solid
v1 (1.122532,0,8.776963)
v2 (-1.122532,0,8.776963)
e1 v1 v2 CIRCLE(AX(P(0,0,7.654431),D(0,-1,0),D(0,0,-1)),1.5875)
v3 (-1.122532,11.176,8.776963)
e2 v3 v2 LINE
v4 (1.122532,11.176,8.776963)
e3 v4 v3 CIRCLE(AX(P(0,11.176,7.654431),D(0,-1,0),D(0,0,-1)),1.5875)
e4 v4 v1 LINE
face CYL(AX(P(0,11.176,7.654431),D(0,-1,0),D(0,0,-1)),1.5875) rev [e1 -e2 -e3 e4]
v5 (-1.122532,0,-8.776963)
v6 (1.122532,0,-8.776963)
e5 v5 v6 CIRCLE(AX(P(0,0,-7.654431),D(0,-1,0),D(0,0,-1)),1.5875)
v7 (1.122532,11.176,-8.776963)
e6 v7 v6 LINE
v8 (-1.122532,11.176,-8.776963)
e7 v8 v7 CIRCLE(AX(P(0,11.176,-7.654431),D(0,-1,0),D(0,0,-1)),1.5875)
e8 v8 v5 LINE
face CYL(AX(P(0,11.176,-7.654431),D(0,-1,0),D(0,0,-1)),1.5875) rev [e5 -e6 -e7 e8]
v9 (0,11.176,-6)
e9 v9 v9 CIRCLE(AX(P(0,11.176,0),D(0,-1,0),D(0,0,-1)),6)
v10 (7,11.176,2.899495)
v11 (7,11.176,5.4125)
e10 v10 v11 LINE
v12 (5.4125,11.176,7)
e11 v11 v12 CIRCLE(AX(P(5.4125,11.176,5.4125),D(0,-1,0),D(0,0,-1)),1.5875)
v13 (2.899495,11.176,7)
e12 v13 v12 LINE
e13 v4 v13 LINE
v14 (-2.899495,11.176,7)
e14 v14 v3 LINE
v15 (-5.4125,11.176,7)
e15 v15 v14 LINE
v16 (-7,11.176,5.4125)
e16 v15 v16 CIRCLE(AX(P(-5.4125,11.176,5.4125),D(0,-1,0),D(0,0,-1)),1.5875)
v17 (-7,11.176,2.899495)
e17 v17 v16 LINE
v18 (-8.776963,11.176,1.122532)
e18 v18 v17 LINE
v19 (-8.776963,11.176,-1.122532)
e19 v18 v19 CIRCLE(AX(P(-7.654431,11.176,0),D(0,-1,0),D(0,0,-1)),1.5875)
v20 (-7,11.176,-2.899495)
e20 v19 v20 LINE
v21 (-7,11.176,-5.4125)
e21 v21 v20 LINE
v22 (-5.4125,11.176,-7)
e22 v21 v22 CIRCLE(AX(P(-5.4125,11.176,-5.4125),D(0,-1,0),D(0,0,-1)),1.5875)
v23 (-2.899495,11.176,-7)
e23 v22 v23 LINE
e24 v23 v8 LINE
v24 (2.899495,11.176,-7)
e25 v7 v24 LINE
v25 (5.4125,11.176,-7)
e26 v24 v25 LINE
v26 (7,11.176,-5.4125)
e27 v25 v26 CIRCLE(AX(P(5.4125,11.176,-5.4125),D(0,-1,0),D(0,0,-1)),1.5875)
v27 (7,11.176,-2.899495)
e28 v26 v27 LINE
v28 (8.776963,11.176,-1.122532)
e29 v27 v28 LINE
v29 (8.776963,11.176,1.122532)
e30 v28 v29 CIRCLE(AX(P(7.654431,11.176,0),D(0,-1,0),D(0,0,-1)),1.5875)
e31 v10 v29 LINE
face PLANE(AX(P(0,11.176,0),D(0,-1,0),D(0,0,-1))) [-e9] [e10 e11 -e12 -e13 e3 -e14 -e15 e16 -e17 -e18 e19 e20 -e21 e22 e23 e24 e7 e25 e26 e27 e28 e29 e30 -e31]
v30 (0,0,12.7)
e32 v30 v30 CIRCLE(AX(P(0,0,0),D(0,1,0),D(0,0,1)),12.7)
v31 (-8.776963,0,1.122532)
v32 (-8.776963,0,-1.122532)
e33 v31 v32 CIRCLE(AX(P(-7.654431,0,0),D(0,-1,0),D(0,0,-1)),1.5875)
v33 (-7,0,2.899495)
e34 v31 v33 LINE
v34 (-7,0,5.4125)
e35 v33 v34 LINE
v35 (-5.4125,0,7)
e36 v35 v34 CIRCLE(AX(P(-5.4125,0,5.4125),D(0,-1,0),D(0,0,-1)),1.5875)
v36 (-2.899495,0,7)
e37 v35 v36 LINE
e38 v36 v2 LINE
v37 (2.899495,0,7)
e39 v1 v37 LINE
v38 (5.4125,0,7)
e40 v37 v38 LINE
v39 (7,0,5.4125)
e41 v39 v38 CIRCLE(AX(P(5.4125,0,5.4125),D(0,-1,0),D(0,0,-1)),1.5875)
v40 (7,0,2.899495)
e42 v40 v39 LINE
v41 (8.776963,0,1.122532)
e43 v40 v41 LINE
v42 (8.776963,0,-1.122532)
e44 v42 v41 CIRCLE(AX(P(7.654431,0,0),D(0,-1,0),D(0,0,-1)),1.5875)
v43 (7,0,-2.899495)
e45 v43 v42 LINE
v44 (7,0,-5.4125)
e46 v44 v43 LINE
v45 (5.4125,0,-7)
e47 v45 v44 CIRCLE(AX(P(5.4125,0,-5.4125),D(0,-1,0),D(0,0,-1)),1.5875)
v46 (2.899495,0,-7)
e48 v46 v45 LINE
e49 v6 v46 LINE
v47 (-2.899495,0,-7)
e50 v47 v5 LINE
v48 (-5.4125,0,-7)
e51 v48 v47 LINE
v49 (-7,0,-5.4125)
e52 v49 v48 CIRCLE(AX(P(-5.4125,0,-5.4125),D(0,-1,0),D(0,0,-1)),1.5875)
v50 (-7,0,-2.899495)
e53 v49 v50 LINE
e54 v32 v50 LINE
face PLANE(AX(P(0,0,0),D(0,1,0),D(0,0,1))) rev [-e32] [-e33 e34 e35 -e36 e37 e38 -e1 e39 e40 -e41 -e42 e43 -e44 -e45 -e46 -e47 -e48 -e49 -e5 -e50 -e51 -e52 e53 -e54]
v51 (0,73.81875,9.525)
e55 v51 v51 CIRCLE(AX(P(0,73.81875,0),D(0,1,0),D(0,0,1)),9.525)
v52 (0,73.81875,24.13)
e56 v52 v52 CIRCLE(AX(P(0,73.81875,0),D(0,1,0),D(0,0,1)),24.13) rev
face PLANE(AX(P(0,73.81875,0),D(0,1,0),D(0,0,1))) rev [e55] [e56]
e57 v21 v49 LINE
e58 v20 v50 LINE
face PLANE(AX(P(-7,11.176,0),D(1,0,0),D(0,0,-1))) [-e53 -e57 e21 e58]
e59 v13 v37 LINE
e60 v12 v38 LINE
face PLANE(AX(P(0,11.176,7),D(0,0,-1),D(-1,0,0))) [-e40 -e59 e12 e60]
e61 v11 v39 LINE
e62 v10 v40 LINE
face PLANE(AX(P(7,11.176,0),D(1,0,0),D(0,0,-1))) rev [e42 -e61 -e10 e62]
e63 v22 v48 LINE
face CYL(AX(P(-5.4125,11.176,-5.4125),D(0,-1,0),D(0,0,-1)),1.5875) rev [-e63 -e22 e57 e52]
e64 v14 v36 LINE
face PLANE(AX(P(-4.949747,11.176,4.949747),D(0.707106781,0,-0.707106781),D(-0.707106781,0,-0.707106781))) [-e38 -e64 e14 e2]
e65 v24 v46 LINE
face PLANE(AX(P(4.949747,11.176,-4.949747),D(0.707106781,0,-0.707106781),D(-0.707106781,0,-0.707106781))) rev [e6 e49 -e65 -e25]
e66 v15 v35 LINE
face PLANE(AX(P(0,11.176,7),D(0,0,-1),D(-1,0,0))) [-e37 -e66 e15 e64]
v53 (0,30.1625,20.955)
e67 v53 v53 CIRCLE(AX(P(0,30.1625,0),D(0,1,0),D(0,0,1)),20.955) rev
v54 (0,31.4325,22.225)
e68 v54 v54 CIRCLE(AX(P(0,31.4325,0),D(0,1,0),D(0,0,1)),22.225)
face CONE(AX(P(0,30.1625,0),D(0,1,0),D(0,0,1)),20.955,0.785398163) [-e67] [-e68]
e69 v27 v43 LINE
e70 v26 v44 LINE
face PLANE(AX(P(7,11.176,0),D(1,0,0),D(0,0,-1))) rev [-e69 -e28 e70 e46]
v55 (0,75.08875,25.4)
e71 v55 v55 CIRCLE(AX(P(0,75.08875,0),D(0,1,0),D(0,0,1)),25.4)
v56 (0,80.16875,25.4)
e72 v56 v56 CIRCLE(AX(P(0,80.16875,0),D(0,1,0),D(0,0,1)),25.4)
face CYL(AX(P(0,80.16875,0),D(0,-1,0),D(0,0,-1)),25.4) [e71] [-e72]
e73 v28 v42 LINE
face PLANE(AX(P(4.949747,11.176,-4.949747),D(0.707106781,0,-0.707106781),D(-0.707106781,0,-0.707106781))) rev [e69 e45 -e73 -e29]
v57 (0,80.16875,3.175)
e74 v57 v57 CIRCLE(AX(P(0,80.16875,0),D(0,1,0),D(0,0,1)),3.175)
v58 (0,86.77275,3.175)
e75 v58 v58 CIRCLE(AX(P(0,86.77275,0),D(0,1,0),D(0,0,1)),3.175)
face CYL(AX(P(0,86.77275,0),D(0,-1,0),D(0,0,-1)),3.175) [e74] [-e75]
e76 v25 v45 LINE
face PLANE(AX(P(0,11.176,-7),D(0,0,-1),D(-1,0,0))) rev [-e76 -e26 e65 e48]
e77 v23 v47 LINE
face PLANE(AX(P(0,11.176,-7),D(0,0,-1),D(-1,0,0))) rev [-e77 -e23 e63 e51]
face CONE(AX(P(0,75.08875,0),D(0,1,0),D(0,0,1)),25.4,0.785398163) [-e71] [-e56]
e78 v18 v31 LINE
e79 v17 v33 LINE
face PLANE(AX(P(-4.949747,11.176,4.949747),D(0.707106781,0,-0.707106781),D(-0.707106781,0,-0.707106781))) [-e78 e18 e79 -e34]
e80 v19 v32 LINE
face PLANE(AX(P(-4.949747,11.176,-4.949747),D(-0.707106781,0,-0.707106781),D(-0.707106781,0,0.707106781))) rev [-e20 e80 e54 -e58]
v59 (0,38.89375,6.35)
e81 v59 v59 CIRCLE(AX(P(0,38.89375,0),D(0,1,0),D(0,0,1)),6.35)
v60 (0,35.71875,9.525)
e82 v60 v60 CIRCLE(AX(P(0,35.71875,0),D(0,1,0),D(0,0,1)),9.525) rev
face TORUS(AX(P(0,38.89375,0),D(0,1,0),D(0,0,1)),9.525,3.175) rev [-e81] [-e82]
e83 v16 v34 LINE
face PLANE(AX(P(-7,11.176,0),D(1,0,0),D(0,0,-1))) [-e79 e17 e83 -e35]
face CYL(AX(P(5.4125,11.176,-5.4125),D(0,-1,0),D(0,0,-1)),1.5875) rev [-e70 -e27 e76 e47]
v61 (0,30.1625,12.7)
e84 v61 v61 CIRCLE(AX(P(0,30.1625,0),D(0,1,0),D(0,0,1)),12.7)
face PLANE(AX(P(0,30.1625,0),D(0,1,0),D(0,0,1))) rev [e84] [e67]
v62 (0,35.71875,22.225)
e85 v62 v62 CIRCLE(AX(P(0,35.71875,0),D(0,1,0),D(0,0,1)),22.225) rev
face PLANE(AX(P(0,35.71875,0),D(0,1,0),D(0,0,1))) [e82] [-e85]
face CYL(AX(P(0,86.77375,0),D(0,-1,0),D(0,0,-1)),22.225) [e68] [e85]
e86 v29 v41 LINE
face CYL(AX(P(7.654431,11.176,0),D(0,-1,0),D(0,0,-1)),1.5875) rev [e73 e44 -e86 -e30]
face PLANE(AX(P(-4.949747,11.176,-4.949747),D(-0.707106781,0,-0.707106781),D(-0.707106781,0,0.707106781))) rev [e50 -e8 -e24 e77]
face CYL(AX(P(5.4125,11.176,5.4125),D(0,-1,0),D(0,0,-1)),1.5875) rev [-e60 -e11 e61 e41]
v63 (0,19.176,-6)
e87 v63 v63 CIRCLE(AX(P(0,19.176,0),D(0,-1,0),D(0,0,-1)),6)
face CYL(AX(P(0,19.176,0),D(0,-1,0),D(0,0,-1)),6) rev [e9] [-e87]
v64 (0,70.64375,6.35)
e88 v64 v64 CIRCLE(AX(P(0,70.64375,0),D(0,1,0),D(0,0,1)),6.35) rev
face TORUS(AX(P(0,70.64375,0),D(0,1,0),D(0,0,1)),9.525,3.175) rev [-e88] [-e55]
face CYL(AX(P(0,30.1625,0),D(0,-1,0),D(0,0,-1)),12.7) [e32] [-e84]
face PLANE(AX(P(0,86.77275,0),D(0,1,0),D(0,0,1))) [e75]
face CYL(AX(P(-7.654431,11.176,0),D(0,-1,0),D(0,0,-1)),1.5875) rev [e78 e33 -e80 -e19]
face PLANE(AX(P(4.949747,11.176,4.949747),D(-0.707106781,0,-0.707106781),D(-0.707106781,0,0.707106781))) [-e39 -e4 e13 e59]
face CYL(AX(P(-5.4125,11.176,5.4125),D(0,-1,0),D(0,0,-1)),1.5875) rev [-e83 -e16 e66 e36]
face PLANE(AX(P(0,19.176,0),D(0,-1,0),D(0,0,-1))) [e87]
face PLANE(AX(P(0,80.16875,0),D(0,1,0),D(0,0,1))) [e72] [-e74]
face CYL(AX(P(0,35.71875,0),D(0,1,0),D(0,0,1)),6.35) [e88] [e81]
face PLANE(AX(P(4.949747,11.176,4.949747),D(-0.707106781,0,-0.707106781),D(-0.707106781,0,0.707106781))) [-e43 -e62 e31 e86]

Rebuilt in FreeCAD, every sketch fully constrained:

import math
import FreeCAD as App
import Part
import Sketcher
from FreeCAD import Vector
Q = App.Units.Quantity


def edges_at(feature, points):
    """Names of the edges that pass closest to the given points."""
    edges = feature.Shape.Edges
    near = lambda p: min(range(len(edges)), key=lambda i: edges[i].distToShape(Part.Vertex(*p))[0])
    return sorted({f"Edge{near(p) + 1}" for p in points})

doc = App.newDocument("Part")
body = doc.addObject("PartDesign::Body", "Body")

sketch1 = body.newObject("Sketcher::SketchObject", "Sketch")
sketch1.AttachmentSupport = (doc.getObject("XZ_Plane"), [""])
sketch1.MapMode = "FlatFace"
sketch1.addGeometry(Part.Circle(Vector(0, 0, 0), Vector(0, 0, 1), 12.7), False)
sketch1.addConstraint(Sketcher.Constraint("Coincident", 0, 3, -1, 1))
sketch1.addConstraint(Sketcher.Constraint("Diameter", 0, Q("1 in")))
pad1 = body.newObject("PartDesign::Pad", "Pad")
pad1.Profile = sketch1
pad1.Length = Q("1.1875 in")
pad1.Reversed = True

sketch2 = body.newObject("Sketcher::SketchObject", "Sketch001")
sketch2.AttachmentSupport = (doc.getObject("XZ_Plane"), [""])
sketch2.MapMode = "FlatFace"
sketch2.AttachmentOffset = App.Placement(Vector(0, 0, -1.1875 * 25.4), App.Rotation())
sketch2.addGeometry(Part.Circle(Vector(0, 0, 0), Vector(0, 0, 1), 25.4), False)
sketch2.addConstraint(Sketcher.Constraint("Coincident", 0, 3, -1, 1))
sketch2.addConstraint(Sketcher.Constraint("Diameter", 0, Q("2 in")))
pad2 = body.newObject("PartDesign::Pad", "Pad001")
pad2.Profile = sketch2
pad2.Length = Q("1.96875 in")
pad2.Reversed = True

sketch3 = body.newObject("Sketcher::SketchObject", "Sketch002")
sketch3.AttachmentSupport = (doc.getObject("XZ_Plane"), [""])
sketch3.MapMode = "FlatFace"
sketch3.addGeometry(Part.LineSegment(Vector(-7, 2.899495, 0), Vector(-8.776963, 1.122532, 0)), False)
sketch3.addGeometry(Part.ArcOfCircle(Part.Circle(Vector(-7.654431, 0, 0), Vector(0, 0, 1), 1.5875), math.radians(135), math.radians(225)), False)
sketch3.addGeometry(Part.LineSegment(Vector(-8.776963, -1.122532, 0), Vector(-7, -2.899495, 0)), False)
sketch3.addGeometry(Part.LineSegment(Vector(-7, -2.899495, 0), Vector(-7, -5.4125, 0)), False)
sketch3.addGeometry(Part.ArcOfCircle(Part.Circle(Vector(-5.4125, -5.4125, 0), Vector(0, 0, 1), 1.5875), math.radians(180), math.radians(270)), False)
sketch3.addGeometry(Part.LineSegment(Vector(-5.4125, -7, 0), Vector(-2.899495, -7, 0)), False)
sketch3.addGeometry(Part.LineSegment(Vector(-2.899495, -7, 0), Vector(-1.122532, -8.776963, 0)), False)
sketch3.addGeometry(Part.ArcOfCircle(Part.Circle(Vector(0, -7.654431, 0), Vector(0, 0, 1), 1.5875), math.radians(-135), math.radians(-45)), False)
sketch3.addGeometry(Part.LineSegment(Vector(1.122532, -8.776963, 0), Vector(2.899495, -7, 0)), False)
sketch3.addGeometry(Part.LineSegment(Vector(2.899495, -7, 0), Vector(5.4125, -7, 0)), False)
sketch3.addGeometry(Part.ArcOfCircle(Part.Circle(Vector(5.4125, -5.4125, 0), Vector(0, 0, 1), 1.5875), math.radians(-90), math.radians(0)), False)
sketch3.addGeometry(Part.LineSegment(Vector(7, -5.4125, 0), Vector(7, -2.899495, 0)), False)
sketch3.addGeometry(Part.LineSegment(Vector(7, -2.899495, 0), Vector(8.776963, -1.122532, 0)), False)
sketch3.addGeometry(Part.ArcOfCircle(Part.Circle(Vector(7.654431, 0, 0), Vector(0, 0, 1), 1.5875), math.radians(-45), math.radians(45)), False)
sketch3.addGeometry(Part.LineSegment(Vector(8.776963, 1.122532, 0), Vector(7, 2.899495, 0)), False)
sketch3.addGeometry(Part.LineSegment(Vector(7, 2.899495, 0), Vector(7, 5.4125, 0)), False)
sketch3.addGeometry(Part.ArcOfCircle(Part.Circle(Vector(5.4125, 5.4125, 0), Vector(0, 0, 1), 1.5875), math.radians(0), math.radians(90)), False)
sketch3.addGeometry(Part.LineSegment(Vector(5.4125, 7, 0), Vector(2.899495, 7, 0)), False)
sketch3.addGeometry(Part.LineSegment(Vector(2.899495, 7, 0), Vector(1.122532, 8.776963, 0)), False)
sketch3.addGeometry(Part.ArcOfCircle(Part.Circle(Vector(0, 7.654431, 0), Vector(0, 0, 1), 1.5875), math.radians(45), math.radians(135)), False)
sketch3.addGeometry(Part.LineSegment(Vector(-1.122532, 8.776963, 0), Vector(-2.899495, 7, 0)), False)
sketch3.addGeometry(Part.LineSegment(Vector(-2.899495, 7, 0), Vector(-5.4125, 7, 0)), False)
sketch3.addGeometry(Part.ArcOfCircle(Part.Circle(Vector(-5.4125, 5.4125, 0), Vector(0, 0, 1), 1.5875), math.radians(90), math.radians(180)), False)
sketch3.addGeometry(Part.LineSegment(Vector(-7, 5.4125, 0), Vector(-7, 2.899495, 0)), False)
sketch3.addConstraint(Sketcher.Constraint("Tangent", 0, 2, 1, 1))
sketch3.addConstraint(Sketcher.Constraint("Tangent", 1, 2, 2, 1))
sketch3.addConstraint(Sketcher.Constraint("Coincident", 2, 2, 3, 1))
sketch3.addConstraint(Sketcher.Constraint("Tangent", 3, 2, 4, 1))
sketch3.addConstraint(Sketcher.Constraint("Tangent", 4, 2, 5, 1))
sketch3.addConstraint(Sketcher.Constraint("Coincident", 5, 2, 6, 1))
sketch3.addConstraint(Sketcher.Constraint("Tangent", 6, 2, 7, 1))
sketch3.addConstraint(Sketcher.Constraint("Tangent", 7, 2, 8, 1))
sketch3.addConstraint(Sketcher.Constraint("Coincident", 8, 2, 9, 1))
sketch3.addConstraint(Sketcher.Constraint("Tangent", 9, 2, 10, 1))
sketch3.addConstraint(Sketcher.Constraint("Tangent", 10, 2, 11, 1))
sketch3.addConstraint(Sketcher.Constraint("Coincident", 11, 2, 12, 1))
sketch3.addConstraint(Sketcher.Constraint("Tangent", 12, 2, 13, 1))
sketch3.addConstraint(Sketcher.Constraint("Tangent", 13, 2, 14, 1))
sketch3.addConstraint(Sketcher.Constraint("Coincident", 14, 2, 15, 1))
sketch3.addConstraint(Sketcher.Constraint("Tangent", 15, 2, 16, 1))
sketch3.addConstraint(Sketcher.Constraint("Tangent", 16, 2, 17, 1))
sketch3.addConstraint(Sketcher.Constraint("Coincident", 17, 2, 18, 1))
sketch3.addConstraint(Sketcher.Constraint("Tangent", 18, 2, 19, 1))
sketch3.addConstraint(Sketcher.Constraint("Tangent", 19, 2, 20, 1))
sketch3.addConstraint(Sketcher.Constraint("Coincident", 20, 2, 21, 1))
sketch3.addConstraint(Sketcher.Constraint("Tangent", 21, 2, 22, 1))
sketch3.addConstraint(Sketcher.Constraint("Tangent", 22, 2, 23, 1))
sketch3.addConstraint(Sketcher.Constraint("Coincident", 23, 2, 0, 1))
sketch3.addConstraint(Sketcher.Constraint("Vertical", 3))
sketch3.addConstraint(Sketcher.Constraint("Horizontal", 5))
sketch3.addConstraint(Sketcher.Constraint("Horizontal", 9))
sketch3.addConstraint(Sketcher.Constraint("Vertical", 11))
sketch3.addConstraint(Sketcher.Constraint("Vertical", 15))
sketch3.addConstraint(Sketcher.Constraint("Horizontal", 17))
sketch3.addConstraint(Sketcher.Constraint("Horizontal", 21))
sketch3.addConstraint(Sketcher.Constraint("Vertical", 23))
sketch3.addConstraint(Sketcher.Constraint("Equal", 1, 4))
sketch3.addConstraint(Sketcher.Constraint("Equal", 4, 7))
sketch3.addConstraint(Sketcher.Constraint("Equal", 7, 10))
sketch3.addConstraint(Sketcher.Constraint("Equal", 10, 13))
sketch3.addConstraint(Sketcher.Constraint("Equal", 13, 16))
sketch3.addConstraint(Sketcher.Constraint("Equal", 16, 19))
sketch3.addConstraint(Sketcher.Constraint("Equal", 19, 22))
sketch3.addConstraint(Sketcher.Constraint("Symmetric", 1, 3, 13, 3, -1, 1))
sketch3.addConstraint(Sketcher.Constraint("Symmetric", 4, 3, 16, 3, -1, 1))
sketch3.addConstraint(Sketcher.Constraint("Symmetric", 7, 3, 19, 3, -1, 1))
sketch3.addConstraint(Sketcher.Constraint("Symmetric", 10, 3, 22, 3, -1, 1))
sketch3.addConstraint(Sketcher.Constraint("Symmetric", 4, 3, 10, 3, -2))
sketch3.addConstraint(Sketcher.Constraint("Symmetric", 6, 2, 7, 2, -2))
sketch3.addConstraint(Sketcher.Constraint("Symmetric", 1, 2, 12, 2, -2))
sketch3.addConstraint(Sketcher.Constraint("Perpendicular", 0, 2))
sketch3.addConstraint(Sketcher.Constraint("Parallel", 2, 6))
sketch3.addConstraint(Sketcher.Constraint("Perpendicular", 6, 8))
sketch3.addConstraint(Sketcher.Constraint("Perpendicular", 12, 14))
sketch3.addConstraint(Sketcher.Constraint("Parallel", 14, 18))
sketch3.addConstraint(Sketcher.Constraint("Perpendicular", 18, 20))
sketch3.addConstraint(Sketcher.Constraint("Equal", 21, 3))
sketch3.addConstraint(Sketcher.Constraint("Equal", 2, 6))
sketch3.addConstraint(Sketcher.Constraint("Radius", 1, Q("0.0625 in")))
sketch3.addConstraint(Sketcher.Constraint("DistanceX", 4, 3, -1, 1, 5.4125))
sketch3.addConstraint(Sketcher.Constraint("DistanceY", 0, 2, 19, 3, 6.531899))
pocket1 = body.newObject("PartDesign::Pocket", "Pocket")
pocket1.Profile = sketch3
pocket1.Length = Q("0.44 in")

sketch4 = body.newObject("Sketcher::SketchObject", "Sketch003")
sketch4.AttachmentSupport = (doc.getObject("XZ_Plane"), [""])
sketch4.MapMode = "FlatFace"
sketch4.AttachmentOffset = App.Placement(Vector(0, 0, -0.44 * 25.4), App.Rotation())
sketch4.addGeometry(Part.Circle(Vector(0, 0, 0), Vector(0, 0, 1), 6), False)
sketch4.addConstraint(Sketcher.Constraint("Coincident", 0, 3, -1, 1))
sketch4.addConstraint(Sketcher.Constraint("Diameter", 0, 12.0))
pocket2 = body.newObject("PartDesign::Pocket", "Pocket001")
pocket2.Profile = sketch4
pocket2.Length = 8

sketch5 = body.newObject("Sketcher::SketchObject", "Sketch004")
sketch5.AttachmentSupport = (doc.getObject("XZ_Plane"), [""])
sketch5.MapMode = "FlatFace"
sketch5.AttachmentOffset = App.Placement(Vector(0, 0, -3.15625 * 25.4), App.Rotation())
sketch5.addGeometry(Part.Circle(Vector(0, 0, 0), Vector(0, 0, 1), 3.175), False)
sketch5.addConstraint(Sketcher.Constraint("Coincident", 0, 3, -1, 1))
sketch5.addConstraint(Sketcher.Constraint("Diameter", 0, Q("0.25 in")))
pad3 = body.newObject("PartDesign::Pad", "Pad002")
pad3.Profile = sketch5
pad3.Length = Q("0.26 in")
pad3.Reversed = True

sketch6 = body.newObject("Sketcher::SketchObject", "Sketch005")
sketch6.AttachmentSupport = (doc.getObject("XZ_Plane"), [""])
sketch6.MapMode = "FlatFace"
sketch6.AttachmentOffset = App.Placement(Vector(0, 0, -2.90625 * 25.4), App.Rotation())
sketch6.addGeometry(Part.Circle(Vector(0, 0, 0), Vector(0, 0, 1), 25.4), False)
sketch6.addGeometry(Part.Circle(Vector(0, 0, 0), Vector(0, 0, 1), 6.35), False)
sketch6.addConstraint(Sketcher.Constraint("Coincident", 0, 3, -1, 1))
sketch6.addConstraint(Sketcher.Constraint("Coincident", 1, 3, -1, 1))
sketch6.addConstraint(Sketcher.Constraint("Diameter", 0, Q("2 in")))
sketch6.addConstraint(Sketcher.Constraint("Diameter", 1, Q("0.5 in")))
pocket3 = body.newObject("PartDesign::Pocket", "Pocket002")
pocket3.Profile = sketch6
pocket3.Length = Q("1.5 in")
pocket3.Reversed = True

sketch7 = body.newObject("Sketcher::SketchObject", "Sketch006")
sketch7.AttachmentSupport = (doc.getObject("XZ_Plane"), [""])
sketch7.MapMode = "FlatFace"
sketch7.AttachmentOffset = App.Placement(Vector(0, 0, -1.1875 * 25.4), App.Rotation())
sketch7.addGeometry(Part.Circle(Vector(0, 0, 0), Vector(0, 0, 1), 25.4), False)
sketch7.addGeometry(Part.Circle(Vector(0, 0, 0), Vector(0, 0, 1), 22.225), False)
sketch7.addConstraint(Sketcher.Constraint("Coincident", 0, 3, -1, 1))
sketch7.addConstraint(Sketcher.Constraint("Coincident", 1, 3, -1, 1))
sketch7.addConstraint(Sketcher.Constraint("Diameter", 0, Q("2 in")))
sketch7.addConstraint(Sketcher.Constraint("Diameter", 1, Q("1.75 in")))
pocket4 = body.newObject("PartDesign::Pocket", "Pocket003")
pocket4.Profile = sketch7
pocket4.Length = Q("0.21875 in")
doc.recompute()

fillet = body.newObject("PartDesign::Fillet", "Fillet")
fillet.Base = (pocket4, edges_at(pocket4, [(-6.35, 35.719, 0), (-6.35, 73.819, 0)]))
fillet.Radius = Q("0.125 in")
doc.recompute()

chamfer = body.newObject("PartDesign::Chamfer", "Chamfer")
chamfer.Base = (fillet, edges_at(fillet, [(-25.4, 73.819, 0), (-22.225, 30.163, 0)]))
chamfer.Size = Q("0.05 in")

doc.recompute()
